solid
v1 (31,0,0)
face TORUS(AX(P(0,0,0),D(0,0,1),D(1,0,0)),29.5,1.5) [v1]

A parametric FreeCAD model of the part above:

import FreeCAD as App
import Part
import Sketcher
from FreeCAD import Vector
Q = App.Units.Quantity

doc = App.newDocument("Part")
body = doc.addObject("PartDesign::Body", "Body")

sketch1 = body.newObject("Sketcher::SketchObject", "Sketch")
sketch1.AttachmentSupport = (doc.getObject("YZ_Plane"), [""])
sketch1.MapMode = "FlatFace"
sketch1.addGeometry(Part.Circle(Vector(-29.5, 0, 0), Vector(0, 0, 1), 1.5), False)
sketch1.addConstraint([
    Sketcher.Constraint("PointOnObject", 0, 3, -1),
    Sketcher.Constraint("Diameter", 0, Q("3 mm")),
    Sketcher.Constraint("DistanceX", 0, 3, -1, 1, Q("29.5 mm")),
])
revolution = body.newObject("PartDesign::Revolution", "Revolution")
revolution.Profile = sketch1
revolution.ReferenceAxis = (sketch1, ["V_Axis"])
revolution.Angle = 360

doc.recompute()
